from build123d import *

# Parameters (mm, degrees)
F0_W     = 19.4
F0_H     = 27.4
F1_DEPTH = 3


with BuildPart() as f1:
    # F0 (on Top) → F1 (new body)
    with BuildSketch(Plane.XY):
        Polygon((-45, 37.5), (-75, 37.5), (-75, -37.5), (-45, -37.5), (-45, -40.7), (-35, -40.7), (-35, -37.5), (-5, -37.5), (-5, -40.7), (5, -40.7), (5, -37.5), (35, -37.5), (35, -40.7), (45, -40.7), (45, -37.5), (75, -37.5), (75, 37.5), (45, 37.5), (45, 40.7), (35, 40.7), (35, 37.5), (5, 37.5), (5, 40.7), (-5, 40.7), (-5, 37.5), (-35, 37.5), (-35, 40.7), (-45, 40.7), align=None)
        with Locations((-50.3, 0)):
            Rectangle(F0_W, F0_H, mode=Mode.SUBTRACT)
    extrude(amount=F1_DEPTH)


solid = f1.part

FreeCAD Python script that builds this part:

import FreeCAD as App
import Part
import Sketcher

V = App.Vector

doc = App.newDocument("Part")
body = doc.addObject("PartDesign::Body", "Body")

# Sketch on XY plane
sketch1 = body.newObject("Sketcher::SketchObject", "Sketch")
sketch1.AttachmentSupport = (doc.getObject("XY_Plane"), [""])
sketch1.MapMode = "FlatFace"
sketch1.addGeometry([
    Part.LineSegment(V(-45, 37.5, 0), V(-75, 37.5, 0)),  # 0
    Part.LineSegment(V(-75, 37.5, 0), V(-75, -37.5, 0)),  # 1
    Part.LineSegment(V(-75, -37.5, 0), V(-45, -37.5, 0)),  # 2
    Part.LineSegment(V(-45, -37.5, 0), V(-45, -40.7, 0)),  # 3
    Part.LineSegment(V(-45, -40.7, 0), V(-35, -40.7, 0)),  # 4
    Part.LineSegment(V(-35, -40.7, 0), V(-35, -37.5, 0)),  # 5
    Part.LineSegment(V(-35, -37.5, 0), V(-5, -37.5, 0)),  # 6
    Part.LineSegment(V(-5, -37.5, 0), V(-5, -40.7, 0)),  # 7
    Part.LineSegment(V(-5, -40.7, 0), V(5, -40.7, 0)),  # 8
    Part.LineSegment(V(5, -40.7, 0), V(5, -37.5, 0)),  # 9
    Part.LineSegment(V(5, -37.5, 0), V(35, -37.5, 0)),  # 10
    Part.LineSegment(V(35, -37.5, 0), V(35, -40.7, 0)),  # 11
    Part.LineSegment(V(35, -40.7, 0), V(45, -40.7, 0)),  # 12
    Part.LineSegment(V(45, -40.7, 0), V(45, -37.5, 0)),  # 13
    Part.LineSegment(V(45, -37.5, 0), V(75, -37.5, 0)),  # 14
    Part.LineSegment(V(75, -37.5, 0), V(75, 37.5, 0)),  # 15
    Part.LineSegment(V(75, 37.5, 0), V(45, 37.5, 0)),  # 16
    Part.LineSegment(V(45, 37.5, 0), V(45, 40.7, 0)),  # 17
    Part.LineSegment(V(45, 40.7, 0), V(35, 40.7, 0)),  # 18
    Part.LineSegment(V(35, 40.7, 0), V(35, 37.5, 0)),  # 19
    Part.LineSegment(V(35, 37.5, 0), V(5, 37.5, 0)),  # 20
    Part.LineSegment(V(5, 37.5, 0), V(5, 40.7, 0)),  # 21
    Part.LineSegment(V(5, 40.7, 0), V(-5, 40.7, 0)),  # 22
    Part.LineSegment(V(-5, 40.7, 0), V(-5, 37.5, 0)),  # 23
    Part.LineSegment(V(-5, 37.5, 0), V(-35, 37.5, 0)),  # 24
    Part.LineSegment(V(-35, 37.5, 0), V(-35, 40.7, 0)),  # 25
    Part.LineSegment(V(-35, 40.7, 0), V(-45, 40.7, 0)),  # 26
    Part.LineSegment(V(-45, 40.7, 0), V(-45, 37.5, 0)),  # 27
    Part.LineSegment(V(-40.6, -13.7, 0), V(-60, -13.7, 0)),  # 28
    Part.LineSegment(V(-60, -13.7, 0), V(-60, 13.7, 0)),  # 29
    Part.LineSegment(V(-60, 13.7, 0), V(-40.6, 13.7, 0)),  # 30
    Part.LineSegment(V(-40.6, 13.7, 0), V(-40.6, -13.7, 0)),  # 31
], False)
sketch1.addConstraint([
    Sketcher.Constraint("Coincident", 0, 2, 1, 1),
    Sketcher.Constraint("Coincident", 1, 2, 2, 1),
    Sketcher.Constraint("Coincident", 2, 2, 3, 1),
    Sketcher.Constraint("Coincident", 3, 2, 4, 1),
    Sketcher.Constraint("Coincident", 4, 2, 5, 1),
    Sketcher.Constraint("Coincident", 5, 2, 6, 1),
    Sketcher.Constraint("Coincident", 6, 2, 7, 1),
    Sketcher.Constraint("Coincident", 7, 2, 8, 1),
    Sketcher.Constraint("Coincident", 8, 2, 9, 1),
    Sketcher.Constraint("Coincident", 9, 2, 10, 1),
    Sketcher.Constraint("Coincident", 10, 2, 11, 1),
    Sketcher.Constraint("Coincident", 11, 2, 12, 1),
    Sketcher.Constraint("Coincident", 12, 2, 13, 1),
    Sketcher.Constraint("Coincident", 13, 2, 14, 1),
    Sketcher.Constraint("Coincident", 14, 2, 15, 1),
    Sketcher.Constraint("Coincident", 15, 2, 16, 1),
    Sketcher.Constraint("Coincident", 16, 2, 17, 1),
    Sketcher.Constraint("Coincident", 17, 2, 18, 1),
    Sketcher.Constraint("Coincident", 18, 2, 19, 1),
    Sketcher.Constraint("Coincident", 19, 2, 20, 1),
    Sketcher.Constraint("Coincident", 20, 2, 21, 1),
    Sketcher.Constraint("Coincident", 21, 2, 22, 1),
    Sketcher.Constraint("Coincident", 22, 2, 23, 1),
    Sketcher.Constraint("Coincident", 23, 2, 24, 1),
    Sketcher.Constraint("Coincident", 24, 2, 25, 1),
    Sketcher.Constraint("Coincident", 25, 2, 26, 1),
    Sketcher.Constraint("Coincident", 26, 2, 27, 1),
    Sketcher.Constraint("Coincident", 27, 2, 0, 1),
    Sketcher.Constraint("Coincident", 28, 2, 29, 1),
    Sketcher.Constraint("Coincident", 29, 2, 30, 1),
    Sketcher.Constraint("Coincident", 30, 2, 31, 1),
    Sketcher.Constraint("Coincident", 31, 2, 28, 1),
    Sketcher.Constraint("Horizontal", 0),
    Sketcher.Constraint("Vertical", 1),
    Sketcher.Constraint("Horizontal", 2),
    Sketcher.Constraint("Vertical", 3),
    Sketcher.Constraint("Horizontal", 4),
    Sketcher.Constraint("Vertical", 5),
    Sketcher.Constraint("Horizontal", 6),
    Sketcher.Constraint("Vertical", 7),
    Sketcher.Constraint("Horizontal", 8),
    Sketcher.Constraint("Vertical", 9),
    Sketcher.Constraint("Horizontal", 10),
    Sketcher.Constraint("Vertical", 11),
    Sketcher.Constraint("Horizontal", 12),
    Sketcher.Constraint("Vertical", 13),
    Sketcher.Constraint("Horizontal", 14),
    Sketcher.Constraint("Vertical", 15),
    Sketcher.Constraint("Horizontal", 16),
    Sketcher.Constraint("Vertical", 17),
    Sketcher.Constraint("Horizontal", 18),
    Sketcher.Constraint("Vertical", 19),
    Sketcher.Constraint("Horizontal", 20),
    Sketcher.Constraint("Vertical", 21),
    Sketcher.Constraint("Horizontal", 22),
    Sketcher.Constraint("Vertical", 23),
    Sketcher.Constraint("Horizontal", 24),
    Sketcher.Constraint("Vertical", 25),
    Sketcher.Constraint("Horizontal", 26),
    Sketcher.Constraint("Vertical", 27),
    Sketcher.Constraint("Horizontal", 28),
    Sketcher.Constraint("Vertical", 29),
    Sketcher.Constraint("Horizontal", 30),
    Sketcher.Constraint("Vertical", 31),
    Sketcher.Constraint("Symmetric", 0, 2, 14, 2, -1, 1),
    Sketcher.Constraint("Symmetric", 2, 2, 16, 2, -1, 1),
    Sketcher.Constraint("Symmetric", 4, 2, 18, 2, -1, 1),
    Sketcher.Constraint("Symmetric", 6, 2, 20, 2, -1, 1),
    Sketcher.Constraint("Symmetric", 8, 2, 22, 2, -1, 1),
    Sketcher.Constraint("Symmetric", 10, 2, 24, 2, -1, 1),
    Sketcher.Constraint("Symmetric", 12, 2, 26, 2, -1, 1),
    Sketcher.Constraint("Symmetric", 6, 2, 9, 2, -2),
    Sketcher.Constraint("Symmetric", 4, 2, 11, 2, -2),
    Sketcher.Constraint("Symmetric", 2, 2, 13, 2, -2),
    Sketcher.Constraint("Horizontal", 2, 2, 5, 2),
    Sketcher.Constraint("Horizontal", 4, 2, 7, 2),
    Sketcher.Constraint("Equal", 2, 6),
    Sketcher.Constraint("Equal", 4, 8),
    Sketcher.Constraint("DistanceX", 0, 2, 0, 1, 30.0),
    Sketcher.Constraint("DistanceX", 4, 1, 4, 2, 10.0),
    Sketcher.Constraint("DistanceY", 1, 2, 1, 1, 75.0),
    Sketcher.Constraint("DistanceX", 28, 2, 28, 1, 19.4),
    Sketcher.Constraint("DistanceY", 3, 2, 3, 1, 3.2),
    Sketcher.Constraint("DistanceY", 29, 1, 29, 2, 27.4),
    Sketcher.Constraint("DistanceX", 28, 2, -1, 1, 60.0),
    Sketcher.Constraint("DistanceY", 3, 2, 28, 2, 27.0),
])
pad1 = body.newObject("PartDesign::Pad", "Pad")
pad1.Profile = sketch1
pad1.Length = 3

doc.recompute()
